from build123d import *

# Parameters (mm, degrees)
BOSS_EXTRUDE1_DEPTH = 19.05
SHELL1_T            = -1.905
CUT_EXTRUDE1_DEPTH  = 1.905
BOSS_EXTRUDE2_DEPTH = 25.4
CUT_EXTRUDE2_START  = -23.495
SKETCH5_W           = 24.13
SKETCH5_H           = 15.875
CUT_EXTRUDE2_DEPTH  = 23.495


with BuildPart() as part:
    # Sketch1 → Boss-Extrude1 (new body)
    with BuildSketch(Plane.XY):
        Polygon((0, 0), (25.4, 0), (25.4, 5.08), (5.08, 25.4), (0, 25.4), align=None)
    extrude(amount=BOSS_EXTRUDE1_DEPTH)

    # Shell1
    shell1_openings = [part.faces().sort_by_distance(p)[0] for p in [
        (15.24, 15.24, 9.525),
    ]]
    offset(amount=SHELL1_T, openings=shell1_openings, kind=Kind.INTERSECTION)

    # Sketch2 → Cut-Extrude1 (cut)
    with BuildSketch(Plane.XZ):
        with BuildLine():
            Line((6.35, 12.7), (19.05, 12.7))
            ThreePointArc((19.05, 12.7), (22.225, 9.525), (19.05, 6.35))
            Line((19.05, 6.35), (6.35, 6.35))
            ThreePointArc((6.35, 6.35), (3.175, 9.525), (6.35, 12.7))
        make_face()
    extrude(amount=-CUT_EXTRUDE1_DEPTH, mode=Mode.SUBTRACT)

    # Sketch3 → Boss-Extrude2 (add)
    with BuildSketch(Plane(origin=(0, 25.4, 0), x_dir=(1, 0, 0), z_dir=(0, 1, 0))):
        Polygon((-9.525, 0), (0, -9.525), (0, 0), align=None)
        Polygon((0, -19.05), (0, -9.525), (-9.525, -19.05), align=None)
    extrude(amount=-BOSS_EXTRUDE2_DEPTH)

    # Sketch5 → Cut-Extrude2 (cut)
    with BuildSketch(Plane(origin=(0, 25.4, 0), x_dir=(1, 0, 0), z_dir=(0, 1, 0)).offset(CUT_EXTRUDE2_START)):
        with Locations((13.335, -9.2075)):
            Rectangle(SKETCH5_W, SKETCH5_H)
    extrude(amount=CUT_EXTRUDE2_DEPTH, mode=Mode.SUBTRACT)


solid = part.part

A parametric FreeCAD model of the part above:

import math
import FreeCAD as App
import Part
import Sketcher

V = App.Vector
Q = App.Units.Quantity


def faces_at(feature, points):
    """Names of the faces that lie closest to the given points."""
    faces = feature.Shape.Faces
    near = lambda p: min(range(len(faces)), key=lambda i: faces[i].distToShape(Part.Vertex(*p))[0])
    return sorted({f"Face{near(p) + 1}" for p in points})

doc = App.newDocument("Part")
body = doc.addObject("PartDesign::Body", "Body")

sketch1 = body.newObject("Sketcher::SketchObject", "Sketch")
sketch1.AttachmentSupport = (doc.getObject("XY_Plane"), [""])
sketch1.MapMode = "FlatFace"
sketch1.addGeometry([
    Part.LineSegment(V(0, 0, 0), V(25.4, 0, 0)),
    Part.LineSegment(V(25.4, 0, 0), V(25.4, 5.08, 0)),
    Part.LineSegment(V(25.4, 5.08, 0), V(5.08, 25.4, 0)),
    Part.LineSegment(V(5.08, 25.4, 0), V(0, 25.4, 0)),
    Part.LineSegment(V(0, 25.4, 0), V(0, 0, 0)),
], False)
sketch1.addConstraint([
    Sketcher.Constraint("Coincident", 0, 2, 1, 1),
    Sketcher.Constraint("Coincident", 1, 2, 2, 1),
    Sketcher.Constraint("Coincident", 2, 2, 3, 1),
    Sketcher.Constraint("Coincident", 3, 2, 4, 1),
    Sketcher.Constraint("Coincident", 4, 2, 0, 1),
    Sketcher.Constraint("Horizontal", 0),
    Sketcher.Constraint("Vertical", 1),
    Sketcher.Constraint("Horizontal", 3),
    Sketcher.Constraint("Vertical", 4),
    Sketcher.Constraint("Coincident", 4, 2, -1, 1),
    Sketcher.Constraint("Equal", 3, 1),
    Sketcher.Constraint("Equal", 0, 4),
    Sketcher.Constraint("DistanceX", 0, 1, 0, 2, Q("1 in")),
    Sketcher.Constraint("DistanceX", 3, 2, 3, 1, Q("0.2 in")),
])
pad1 = body.newObject("PartDesign::Pad", "Pad")
pad1.Profile = sketch1
pad1.Length = Q("0.75 in")
doc.recompute()

thickness = body.newObject("PartDesign::Thickness", "Thickness")
thickness.Base = (pad1, faces_at(pad1, [(15.24, 15.24, 9.525)]))
thickness.Value = Q("0.075 in")
thickness.Reversed = True
thickness.Join = "Intersection"

sketch2 = body.newObject("Sketcher::SketchObject", "Sketch001")
sketch2.AttachmentSupport = (doc.getObject("XZ_Plane"), [""])
sketch2.MapMode = "FlatFace"
sketch2.addGeometry([
    Part.LineSegment(V(19.05, 12.7, 0), V(6.35, 12.7, 0)),
    Part.ArcOfCircle(Part.Circle(V(6.35, 9.525, 0), V(0, 0, 1), 3.175), math.radians(90), math.radians(270)),
    Part.LineSegment(V(6.35, 6.35, 0), V(19.05, 6.35, 0)),
    Part.ArcOfCircle(Part.Circle(V(19.05, 9.525, 0), V(0, 0, 1), 3.175), math.radians(-90), math.radians(90)),
], False)
sketch2.addConstraint([
    Sketcher.Constraint("Tangent", 0, 2, 1, 1),
    Sketcher.Constraint("Tangent", 1, 2, 2, 1),
    Sketcher.Constraint("Tangent", 2, 2, 3, 1),
    Sketcher.Constraint("Tangent", 3, 2, 0, 1),
    Sketcher.Constraint("Horizontal", 0),
    Sketcher.Constraint("Horizontal", 2),
    Sketcher.Constraint("DistanceX", 0, 2, 0, 1, Q("0.5 in")),
    Sketcher.Constraint("Radius", 1, Q("0.125 in")),
    Sketcher.Constraint("DistanceY", -1, 1, 0, 2, Q("0.5 in")),
    Sketcher.Constraint("DistanceX", -1, 1, 1, 3, Q("0.25 in")),
])
pocket1 = body.newObject("PartDesign::Pocket", "Pocket")
pocket1.Profile = sketch2
pocket1.Length = Q("0.075 in")

sketch3 = body.newObject("Sketcher::SketchObject", "Sketch002")
sketch3.AttachmentSupport = (doc.getObject("XZ_Plane"), [""])
sketch3.MapMode = "FlatFace"
sketch3.AttachmentOffset = App.Placement(V(0, 0, -1 * 25.4), App.Rotation())
sketch3.addGeometry([
    Part.LineSegment(V(-9.525, 0, 0), V(0, 9.525, 0)),
    Part.LineSegment(V(0, 9.525, 0), V(0, 0, 0)),
    Part.LineSegment(V(0, 0, 0), V(-9.525, 0, 0)),
    Part.LineSegment(V(0, 19.05, 0), V(0, 9.525, 0)),
    Part.LineSegment(V(0, 9.525, 0), V(-9.525, 19.05, 0)),
    Part.LineSegment(V(-9.525, 19.05, 0), V(0, 19.05, 0)),
], False)
sketch3.addConstraint([
    Sketcher.Constraint("Coincident", 0, 2, 1, 1),
    Sketcher.Constraint("Coincident", 1, 2, 2, 1),
    Sketcher.Constraint("Coincident", 2, 2, 0, 1),
    Sketcher.Constraint("Coincident", 3, 2, 4, 1),
    Sketcher.Constraint("Coincident", 4, 2, 5, 1),
    Sketcher.Constraint("Coincident", 5, 2, 3, 1),
    Sketcher.Constraint("Vertical", 1),
    Sketcher.Constraint("Horizontal", 2),
    Sketcher.Constraint("Vertical", 3),
    Sketcher.Constraint("Horizontal", 5),
    Sketcher.Constraint("Coincident", 1, 2, -1, 1),
    Sketcher.Constraint("Coincident", 3, 2, 0, 2),
    Sketcher.Constraint("Perpendicular", 0, 4),
    Sketcher.Constraint("Vertical", 2, 2, 4, 2),
    Sketcher.Constraint("Equal", 5, 1),
    Sketcher.Constraint("DistanceX", 2, 2, 2, 1, Q("0.375 in")),
])
pad2 = body.newObject("PartDesign::Pad", "Pad001")
pad2.Profile = sketch3
pad2.Length = Q("1 in")

sketch4 = body.newObject("Sketcher::SketchObject", "Sketch003")
sketch4.AttachmentSupport = (doc.getObject("XZ_Plane"), [""])
sketch4.MapMode = "FlatFace"
sketch4.AttachmentOffset = App.Placement(V(0, 0, -0.075 * 25.4), App.Rotation())
sketch4.addGeometry([
    Part.LineSegment(V(1.27, 1.27, 0), V(1.27, 17.145, 0)),
    Part.LineSegment(V(1.27, 17.145, 0), V(25.4, 17.145, 0)),
    Part.LineSegment(V(25.4, 17.145, 0), V(25.4, 1.27, 0)),
    Part.LineSegment(V(25.4, 1.27, 0), V(1.27, 1.27, 0)),
], False)
sketch4.addConstraint([
    Sketcher.Constraint("Coincident", 0, 2, 1, 1),
    Sketcher.Constraint("Coincident", 1, 2, 2, 1),
    Sketcher.Constraint("Coincident", 2, 2, 3, 1),
    Sketcher.Constraint("Coincident", 3, 2, 0, 1),
    Sketcher.Constraint("Vertical", 0),
    Sketcher.Constraint("Horizontal", 1),
    Sketcher.Constraint("Vertical", 2),
    Sketcher.Constraint("Horizontal", 3),
    Sketcher.Constraint("DistanceX", -1, 1, 1, 2, Q("1 in")),
    Sketcher.Constraint("DistanceX", 1, 1, 1, 2, Q("0.95 in")),
    Sketcher.Constraint("DistanceY", 0, 1, 0, 2, Q("0.625 in")),
    Sketcher.Constraint("DistanceY", -1, 1, 2, 2, Q("0.05 in")),
])
pocket2 = body.newObject("PartDesign::Pocket", "Pocket001")
pocket2.Profile = sketch4
pocket2.Length = Q("0.925 in")

doc.recompute()
